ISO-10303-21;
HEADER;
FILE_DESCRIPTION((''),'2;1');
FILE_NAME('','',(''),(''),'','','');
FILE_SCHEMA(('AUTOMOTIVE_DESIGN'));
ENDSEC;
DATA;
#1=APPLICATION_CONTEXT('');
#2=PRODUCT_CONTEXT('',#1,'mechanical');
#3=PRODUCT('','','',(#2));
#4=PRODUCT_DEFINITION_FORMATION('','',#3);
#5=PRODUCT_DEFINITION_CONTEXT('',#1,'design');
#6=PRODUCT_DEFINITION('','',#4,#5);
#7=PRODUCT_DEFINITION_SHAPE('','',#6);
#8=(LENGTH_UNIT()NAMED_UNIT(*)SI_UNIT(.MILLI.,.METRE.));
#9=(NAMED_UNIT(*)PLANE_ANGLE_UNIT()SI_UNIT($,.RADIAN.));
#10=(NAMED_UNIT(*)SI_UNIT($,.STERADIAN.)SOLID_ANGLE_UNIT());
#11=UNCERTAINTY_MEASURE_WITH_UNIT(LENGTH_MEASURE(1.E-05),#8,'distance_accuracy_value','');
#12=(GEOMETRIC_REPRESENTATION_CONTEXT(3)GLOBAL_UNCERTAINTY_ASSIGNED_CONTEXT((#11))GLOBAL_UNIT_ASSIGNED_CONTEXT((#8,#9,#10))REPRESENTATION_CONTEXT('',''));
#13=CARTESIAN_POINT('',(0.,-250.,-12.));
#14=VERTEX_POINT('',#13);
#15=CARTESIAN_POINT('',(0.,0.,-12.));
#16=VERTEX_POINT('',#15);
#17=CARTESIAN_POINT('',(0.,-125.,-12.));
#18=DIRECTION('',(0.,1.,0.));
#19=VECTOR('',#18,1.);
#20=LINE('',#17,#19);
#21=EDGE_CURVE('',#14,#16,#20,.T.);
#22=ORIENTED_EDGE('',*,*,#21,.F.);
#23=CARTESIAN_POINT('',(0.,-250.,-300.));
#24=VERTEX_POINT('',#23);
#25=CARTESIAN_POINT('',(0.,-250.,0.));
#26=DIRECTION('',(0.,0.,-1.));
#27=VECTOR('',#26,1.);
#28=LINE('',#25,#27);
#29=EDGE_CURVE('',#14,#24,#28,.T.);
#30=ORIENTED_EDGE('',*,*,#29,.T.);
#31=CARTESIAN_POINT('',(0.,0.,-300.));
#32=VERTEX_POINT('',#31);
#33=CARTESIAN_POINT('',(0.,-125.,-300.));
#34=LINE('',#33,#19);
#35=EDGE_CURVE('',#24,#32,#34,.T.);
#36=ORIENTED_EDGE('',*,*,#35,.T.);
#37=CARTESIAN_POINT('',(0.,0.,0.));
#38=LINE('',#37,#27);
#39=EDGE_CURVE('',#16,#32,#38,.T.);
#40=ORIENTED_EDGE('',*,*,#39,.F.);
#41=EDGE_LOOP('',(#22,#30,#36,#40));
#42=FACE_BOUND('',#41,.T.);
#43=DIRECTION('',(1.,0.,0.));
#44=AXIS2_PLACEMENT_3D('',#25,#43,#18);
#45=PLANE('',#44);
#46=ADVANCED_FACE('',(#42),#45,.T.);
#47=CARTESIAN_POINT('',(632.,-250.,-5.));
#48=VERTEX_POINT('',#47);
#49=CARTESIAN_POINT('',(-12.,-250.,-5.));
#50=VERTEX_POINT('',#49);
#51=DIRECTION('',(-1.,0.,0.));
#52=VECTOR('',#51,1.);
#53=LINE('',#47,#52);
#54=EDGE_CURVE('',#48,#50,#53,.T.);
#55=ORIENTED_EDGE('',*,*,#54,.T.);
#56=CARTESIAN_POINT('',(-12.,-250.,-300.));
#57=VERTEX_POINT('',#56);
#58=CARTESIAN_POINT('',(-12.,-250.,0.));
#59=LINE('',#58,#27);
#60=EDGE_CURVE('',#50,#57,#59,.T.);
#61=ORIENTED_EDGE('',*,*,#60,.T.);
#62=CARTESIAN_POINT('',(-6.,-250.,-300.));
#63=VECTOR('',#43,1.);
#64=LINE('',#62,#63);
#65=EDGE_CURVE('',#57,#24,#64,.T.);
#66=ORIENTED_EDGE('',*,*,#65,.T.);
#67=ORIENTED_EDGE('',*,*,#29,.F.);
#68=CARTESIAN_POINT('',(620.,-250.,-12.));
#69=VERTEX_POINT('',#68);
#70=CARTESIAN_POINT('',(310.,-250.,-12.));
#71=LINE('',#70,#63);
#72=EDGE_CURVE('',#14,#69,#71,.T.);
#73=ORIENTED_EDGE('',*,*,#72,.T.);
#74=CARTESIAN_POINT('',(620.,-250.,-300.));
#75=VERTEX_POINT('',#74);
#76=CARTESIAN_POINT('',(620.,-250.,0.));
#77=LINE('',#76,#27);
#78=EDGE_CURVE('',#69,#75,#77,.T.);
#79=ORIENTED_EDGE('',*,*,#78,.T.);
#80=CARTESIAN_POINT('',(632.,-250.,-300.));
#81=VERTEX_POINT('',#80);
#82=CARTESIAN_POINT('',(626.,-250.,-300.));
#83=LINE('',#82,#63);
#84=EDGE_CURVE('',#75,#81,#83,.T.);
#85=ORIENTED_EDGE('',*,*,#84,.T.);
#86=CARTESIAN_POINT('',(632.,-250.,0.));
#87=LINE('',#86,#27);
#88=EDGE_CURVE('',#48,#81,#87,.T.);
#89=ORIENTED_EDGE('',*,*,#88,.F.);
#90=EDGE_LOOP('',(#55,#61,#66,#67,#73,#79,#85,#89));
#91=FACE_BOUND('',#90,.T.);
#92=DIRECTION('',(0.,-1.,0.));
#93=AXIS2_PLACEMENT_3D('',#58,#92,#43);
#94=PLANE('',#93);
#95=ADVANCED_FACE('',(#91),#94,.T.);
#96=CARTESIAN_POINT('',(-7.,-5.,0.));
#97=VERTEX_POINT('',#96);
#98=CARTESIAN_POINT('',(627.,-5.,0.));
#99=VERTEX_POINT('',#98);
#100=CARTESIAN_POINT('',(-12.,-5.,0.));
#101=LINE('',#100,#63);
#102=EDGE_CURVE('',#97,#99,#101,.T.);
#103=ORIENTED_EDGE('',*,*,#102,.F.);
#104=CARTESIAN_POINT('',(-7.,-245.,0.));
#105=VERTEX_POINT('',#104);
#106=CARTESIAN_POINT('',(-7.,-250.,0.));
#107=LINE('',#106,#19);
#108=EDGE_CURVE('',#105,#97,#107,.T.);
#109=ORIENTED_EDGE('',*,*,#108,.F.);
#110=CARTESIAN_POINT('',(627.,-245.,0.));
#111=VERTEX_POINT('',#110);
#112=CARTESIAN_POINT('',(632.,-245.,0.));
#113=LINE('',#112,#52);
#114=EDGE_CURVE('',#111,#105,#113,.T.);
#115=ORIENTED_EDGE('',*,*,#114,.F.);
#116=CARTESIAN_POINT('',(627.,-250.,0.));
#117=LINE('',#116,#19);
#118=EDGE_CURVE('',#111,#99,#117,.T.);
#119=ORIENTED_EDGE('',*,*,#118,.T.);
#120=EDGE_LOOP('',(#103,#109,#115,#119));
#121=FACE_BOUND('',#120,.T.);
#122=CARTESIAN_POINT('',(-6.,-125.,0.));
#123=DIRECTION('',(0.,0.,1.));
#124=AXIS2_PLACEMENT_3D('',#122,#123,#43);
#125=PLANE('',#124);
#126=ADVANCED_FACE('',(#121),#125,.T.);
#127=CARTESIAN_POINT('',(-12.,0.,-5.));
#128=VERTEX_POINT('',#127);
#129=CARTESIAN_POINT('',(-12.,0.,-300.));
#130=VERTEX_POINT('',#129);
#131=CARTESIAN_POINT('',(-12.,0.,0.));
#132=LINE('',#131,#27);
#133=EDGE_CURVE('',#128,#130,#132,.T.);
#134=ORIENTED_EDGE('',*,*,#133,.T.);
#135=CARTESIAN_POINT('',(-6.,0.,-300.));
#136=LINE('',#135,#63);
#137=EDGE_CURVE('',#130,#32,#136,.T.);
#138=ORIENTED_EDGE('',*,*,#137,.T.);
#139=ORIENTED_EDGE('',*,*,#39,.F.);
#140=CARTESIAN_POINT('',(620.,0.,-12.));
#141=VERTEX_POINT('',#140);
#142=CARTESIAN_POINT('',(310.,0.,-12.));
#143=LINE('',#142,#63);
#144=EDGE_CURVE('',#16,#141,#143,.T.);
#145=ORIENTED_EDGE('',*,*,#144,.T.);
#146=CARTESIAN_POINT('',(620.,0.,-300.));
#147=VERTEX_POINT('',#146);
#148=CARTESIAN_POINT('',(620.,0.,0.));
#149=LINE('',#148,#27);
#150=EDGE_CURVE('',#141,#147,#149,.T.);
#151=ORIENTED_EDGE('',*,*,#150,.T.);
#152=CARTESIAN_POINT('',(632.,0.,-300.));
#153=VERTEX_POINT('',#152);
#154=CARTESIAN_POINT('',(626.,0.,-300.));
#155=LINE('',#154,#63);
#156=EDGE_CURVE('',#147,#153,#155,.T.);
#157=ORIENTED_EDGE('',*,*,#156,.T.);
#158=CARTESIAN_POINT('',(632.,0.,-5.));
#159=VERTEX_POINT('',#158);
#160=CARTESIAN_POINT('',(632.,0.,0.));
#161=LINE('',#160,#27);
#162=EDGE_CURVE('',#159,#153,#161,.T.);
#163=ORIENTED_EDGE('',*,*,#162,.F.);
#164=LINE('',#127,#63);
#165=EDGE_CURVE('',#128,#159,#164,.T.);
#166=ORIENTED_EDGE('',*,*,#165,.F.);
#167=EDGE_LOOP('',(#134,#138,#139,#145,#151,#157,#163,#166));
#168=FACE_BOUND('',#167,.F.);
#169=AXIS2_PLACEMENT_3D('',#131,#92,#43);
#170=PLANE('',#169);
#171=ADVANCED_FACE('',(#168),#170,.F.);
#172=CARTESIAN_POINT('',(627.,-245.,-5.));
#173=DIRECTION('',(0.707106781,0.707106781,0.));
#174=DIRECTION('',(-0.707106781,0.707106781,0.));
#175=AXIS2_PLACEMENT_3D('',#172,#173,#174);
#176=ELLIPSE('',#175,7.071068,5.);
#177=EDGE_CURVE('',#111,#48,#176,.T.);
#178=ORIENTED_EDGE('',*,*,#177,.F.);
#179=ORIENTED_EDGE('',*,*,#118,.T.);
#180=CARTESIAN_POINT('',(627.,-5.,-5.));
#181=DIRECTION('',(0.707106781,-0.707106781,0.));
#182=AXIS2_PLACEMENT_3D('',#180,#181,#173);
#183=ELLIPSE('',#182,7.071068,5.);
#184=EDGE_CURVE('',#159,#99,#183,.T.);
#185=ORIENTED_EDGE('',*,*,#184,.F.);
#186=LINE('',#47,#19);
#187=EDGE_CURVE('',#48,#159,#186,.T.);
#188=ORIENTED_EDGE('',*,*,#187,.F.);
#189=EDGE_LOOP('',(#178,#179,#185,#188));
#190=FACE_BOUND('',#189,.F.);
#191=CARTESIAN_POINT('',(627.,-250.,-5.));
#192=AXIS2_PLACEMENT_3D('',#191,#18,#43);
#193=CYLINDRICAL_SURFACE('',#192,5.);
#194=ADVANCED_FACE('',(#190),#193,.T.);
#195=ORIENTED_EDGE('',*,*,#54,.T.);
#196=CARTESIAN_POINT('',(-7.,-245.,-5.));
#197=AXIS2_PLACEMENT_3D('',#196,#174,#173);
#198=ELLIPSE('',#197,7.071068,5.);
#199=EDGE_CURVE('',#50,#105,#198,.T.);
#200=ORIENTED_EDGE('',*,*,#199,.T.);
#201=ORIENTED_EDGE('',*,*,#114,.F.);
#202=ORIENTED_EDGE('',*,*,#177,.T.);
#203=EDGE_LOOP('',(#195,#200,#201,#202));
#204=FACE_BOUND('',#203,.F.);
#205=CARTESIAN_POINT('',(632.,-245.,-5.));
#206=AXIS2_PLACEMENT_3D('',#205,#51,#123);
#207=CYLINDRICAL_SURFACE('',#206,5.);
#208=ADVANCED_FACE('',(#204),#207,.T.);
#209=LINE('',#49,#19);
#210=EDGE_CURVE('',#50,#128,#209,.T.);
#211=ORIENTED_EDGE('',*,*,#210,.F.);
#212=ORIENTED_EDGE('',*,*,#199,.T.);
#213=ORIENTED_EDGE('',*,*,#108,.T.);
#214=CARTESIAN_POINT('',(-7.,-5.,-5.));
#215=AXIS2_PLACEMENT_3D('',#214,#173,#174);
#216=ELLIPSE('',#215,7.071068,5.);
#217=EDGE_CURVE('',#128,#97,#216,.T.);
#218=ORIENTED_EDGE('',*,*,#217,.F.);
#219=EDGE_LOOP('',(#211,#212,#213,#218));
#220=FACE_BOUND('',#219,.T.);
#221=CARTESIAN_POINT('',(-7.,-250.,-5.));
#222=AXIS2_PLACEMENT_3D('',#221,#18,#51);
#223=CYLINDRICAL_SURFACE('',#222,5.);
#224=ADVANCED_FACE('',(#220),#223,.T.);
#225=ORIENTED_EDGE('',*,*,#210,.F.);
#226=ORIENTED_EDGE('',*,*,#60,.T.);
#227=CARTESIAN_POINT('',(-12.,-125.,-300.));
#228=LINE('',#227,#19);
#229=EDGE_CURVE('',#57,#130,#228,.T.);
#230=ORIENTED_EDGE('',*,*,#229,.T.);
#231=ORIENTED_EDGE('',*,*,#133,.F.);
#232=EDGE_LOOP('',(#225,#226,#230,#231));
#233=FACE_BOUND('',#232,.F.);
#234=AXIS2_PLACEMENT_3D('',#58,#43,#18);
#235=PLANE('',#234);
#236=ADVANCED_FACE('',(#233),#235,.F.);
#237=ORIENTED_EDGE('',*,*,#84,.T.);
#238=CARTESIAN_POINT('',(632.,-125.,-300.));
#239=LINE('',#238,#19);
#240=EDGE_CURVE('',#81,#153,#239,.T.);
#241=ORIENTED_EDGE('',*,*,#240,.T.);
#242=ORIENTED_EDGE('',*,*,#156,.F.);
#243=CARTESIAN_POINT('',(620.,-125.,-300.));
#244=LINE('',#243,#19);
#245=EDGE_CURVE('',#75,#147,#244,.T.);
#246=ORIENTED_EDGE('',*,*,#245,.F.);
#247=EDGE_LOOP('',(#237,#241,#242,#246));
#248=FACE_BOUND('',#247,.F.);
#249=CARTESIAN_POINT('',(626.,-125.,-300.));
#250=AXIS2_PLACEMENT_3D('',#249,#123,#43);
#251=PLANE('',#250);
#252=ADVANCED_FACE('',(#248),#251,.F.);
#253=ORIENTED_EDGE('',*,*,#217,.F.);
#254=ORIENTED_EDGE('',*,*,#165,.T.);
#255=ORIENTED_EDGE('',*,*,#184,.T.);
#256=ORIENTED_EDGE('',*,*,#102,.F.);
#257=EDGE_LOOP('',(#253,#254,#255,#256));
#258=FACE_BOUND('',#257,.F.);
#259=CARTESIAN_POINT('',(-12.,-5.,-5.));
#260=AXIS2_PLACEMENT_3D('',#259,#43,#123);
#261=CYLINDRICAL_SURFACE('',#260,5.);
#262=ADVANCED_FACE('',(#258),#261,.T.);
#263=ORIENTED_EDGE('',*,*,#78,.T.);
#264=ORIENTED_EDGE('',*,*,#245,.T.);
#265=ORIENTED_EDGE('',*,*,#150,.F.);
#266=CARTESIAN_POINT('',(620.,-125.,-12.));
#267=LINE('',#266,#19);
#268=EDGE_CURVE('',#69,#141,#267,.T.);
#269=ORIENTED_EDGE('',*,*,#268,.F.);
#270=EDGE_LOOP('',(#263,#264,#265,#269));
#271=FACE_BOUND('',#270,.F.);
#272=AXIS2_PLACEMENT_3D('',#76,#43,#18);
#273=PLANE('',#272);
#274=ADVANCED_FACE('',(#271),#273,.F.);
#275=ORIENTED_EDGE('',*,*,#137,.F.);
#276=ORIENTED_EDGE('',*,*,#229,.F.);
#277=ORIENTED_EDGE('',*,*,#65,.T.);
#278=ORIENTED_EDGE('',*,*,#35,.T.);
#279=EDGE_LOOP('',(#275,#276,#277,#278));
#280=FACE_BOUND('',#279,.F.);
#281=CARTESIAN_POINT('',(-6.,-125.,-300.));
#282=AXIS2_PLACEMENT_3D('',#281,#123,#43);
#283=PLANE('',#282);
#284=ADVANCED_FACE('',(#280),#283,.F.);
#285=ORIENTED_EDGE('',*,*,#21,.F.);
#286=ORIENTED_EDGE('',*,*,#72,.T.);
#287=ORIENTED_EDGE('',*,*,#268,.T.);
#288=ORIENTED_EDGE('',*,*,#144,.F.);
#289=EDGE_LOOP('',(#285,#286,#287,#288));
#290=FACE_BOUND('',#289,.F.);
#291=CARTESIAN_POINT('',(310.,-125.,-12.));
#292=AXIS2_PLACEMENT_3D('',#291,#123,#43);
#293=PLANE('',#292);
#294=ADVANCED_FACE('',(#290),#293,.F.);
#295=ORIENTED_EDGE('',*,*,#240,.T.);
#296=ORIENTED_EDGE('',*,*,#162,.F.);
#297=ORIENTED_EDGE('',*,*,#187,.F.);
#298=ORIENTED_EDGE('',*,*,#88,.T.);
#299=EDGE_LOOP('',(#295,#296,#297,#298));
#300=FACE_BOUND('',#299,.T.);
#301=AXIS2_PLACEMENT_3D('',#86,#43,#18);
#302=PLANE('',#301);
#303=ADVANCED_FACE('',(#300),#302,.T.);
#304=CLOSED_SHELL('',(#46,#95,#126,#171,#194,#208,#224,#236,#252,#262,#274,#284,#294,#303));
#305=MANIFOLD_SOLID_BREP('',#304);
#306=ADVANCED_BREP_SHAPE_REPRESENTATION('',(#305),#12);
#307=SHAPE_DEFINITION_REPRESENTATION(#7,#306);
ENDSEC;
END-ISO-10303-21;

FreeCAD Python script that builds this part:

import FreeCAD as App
import Part
import Sketcher


def edges_at(feature, points):
    """Names of the edges that pass closest to the given points."""
    edges = feature.Shape.Edges
    near = lambda p: min(range(len(edges)), key=lambda i: edges[i].distToShape(Part.Vertex(*p))[0])
    return sorted({f"Edge{near(p) + 1}" for p in points})

doc = App.newDocument("Part")
params = doc.addObject("Spreadsheet::Sheet", "Params")
for row, (alias, value) in enumerate([
    ("sketch1_width", "620 mm"),
    ("sketch1_height", "250 mm"),
    ("pad1_length", "12 mm"),
    ("sketch2_width", "12 mm"),
    ("sketch2_height", "250 mm"),
    ("pad2_length", "300 mm"),
    ("fillet_radius", "5 mm"),
], start=1):
    params.set(f"A{row}", alias)
    params.set(f"B{row}", "=" + value)
    params.setAlias(f"B{row}", alias)

body = doc.addObject("PartDesign::Body", "Body")

# Sketch on XY plane
sketch1 = body.newObject("Sketcher::SketchObject", "Sketch")
sketch1.AttachmentSupport = (doc.getObject("XY_Plane"), [""])
sketch1.MapMode = "FlatFace"
sketch1.addGeometry(Part.LineSegment(App.Vector(0, 0, 0), App.Vector(0, -250, 0)), False)
sketch1.addGeometry(Part.LineSegment(App.Vector(0, -250, 0), App.Vector(620, -250, 0)), False)
sketch1.addGeometry(Part.LineSegment(App.Vector(620, -250, 0), App.Vector(620, 0, 0)), False)
sketch1.addGeometry(Part.LineSegment(App.Vector(620, 0, 0), App.Vector(0, 0, 0)), False)
sketch1.addConstraint(Sketcher.Constraint("Coincident", 0, 2, 1, 1))
sketch1.addConstraint(Sketcher.Constraint("Coincident", 1, 2, 2, 1))
sketch1.addConstraint(Sketcher.Constraint("Coincident", 2, 2, 3, 1))
sketch1.addConstraint(Sketcher.Constraint("Coincident", 3, 2, 0, 1))
sketch1.addConstraint(Sketcher.Constraint("Vertical", 0))
sketch1.addConstraint(Sketcher.Constraint("Horizontal", 1))
sketch1.addConstraint(Sketcher.Constraint("Vertical", 2))
sketch1.addConstraint(Sketcher.Constraint("Horizontal", 3))
sketch1.addConstraint(Sketcher.Constraint("Coincident", 3, 2, -1, 1))
sketch1.addConstraint(Sketcher.Constraint("DistanceX", 1, 1, 1, 2, 620.0))
sketch1.addConstraint(Sketcher.Constraint("DistanceY", 0, 2, 0, 1, 250.0))
sketch1.setExpression("Constraints[9]", "Params.sketch1_width")
sketch1.setExpression("Constraints[10]", "Params.sketch1_height")
pad1 = body.newObject("PartDesign::Pad", "Pad")
pad1.Profile = sketch1
pad1.setExpression("Length", "Params.pad1_length")
pad1.Reversed = True

# Sketch on XY plane
sketch2 = body.newObject("Sketcher::SketchObject", "Sketch001")
sketch2.AttachmentSupport = (doc.getObject("XY_Plane"), [""])
sketch2.MapMode = "FlatFace"
sketch2.addGeometry(Part.LineSegment(App.Vector(-12, 0, 0), App.Vector(-12, -250, 0)), False)
sketch2.addGeometry(Part.LineSegment(App.Vector(-12, -250, 0), App.Vector(0, -250, 0)), False)
sketch2.addGeometry(Part.LineSegment(App.Vector(0, -250, 0), App.Vector(0, 0, 0)), False)
sketch2.addGeometry(Part.LineSegment(App.Vector(0, 0, 0), App.Vector(-12, 0, 0)), False)
sketch2.addGeometry(Part.LineSegment(App.Vector(620, 0, 0), App.Vector(620, -250, 0)), False)
sketch2.addGeometry(Part.LineSegment(App.Vector(620, -250, 0), App.Vector(632, -250, 0)), False)
sketch2.addGeometry(Part.LineSegment(App.Vector(632, -250, 0), App.Vector(632, 0, 0)), False)
sketch2.addGeometry(Part.LineSegment(App.Vector(632, 0, 0), App.Vector(620, 0, 0)), False)
sketch2.addConstraint(Sketcher.Constraint("Coincident", 0, 2, 1, 1))
sketch2.addConstraint(Sketcher.Constraint("Coincident", 1, 2, 2, 1))
sketch2.addConstraint(Sketcher.Constraint("Coincident", 2, 2, 3, 1))
sketch2.addConstraint(Sketcher.Constraint("Coincident", 3, 2, 0, 1))
sketch2.addConstraint(Sketcher.Constraint("Coincident", 4, 2, 5, 1))
sketch2.addConstraint(Sketcher.Constraint("Coincident", 5, 2, 6, 1))
sketch2.addConstraint(Sketcher.Constraint("Coincident", 6, 2, 7, 1))
sketch2.addConstraint(Sketcher.Constraint("Coincident", 7, 2, 4, 1))
sketch2.addConstraint(Sketcher.Constraint("Vertical", 0))
sketch2.addConstraint(Sketcher.Constraint("Horizontal", 1))
sketch2.addConstraint(Sketcher.Constraint("Vertical", 2))
sketch2.addConstraint(Sketcher.Constraint("Horizontal", 3))
sketch2.addConstraint(Sketcher.Constraint("Vertical", 4))
sketch2.addConstraint(Sketcher.Constraint("Horizontal", 5))
sketch2.addConstraint(Sketcher.Constraint("Vertical", 6))
sketch2.addConstraint(Sketcher.Constraint("Horizontal", 7))
sketch2.addConstraint(Sketcher.Constraint("Coincident", 2, 2, -1, 1))
sketch2.addConstraint(Sketcher.Constraint("PointOnObject", 6, 2, -1))
sketch2.addConstraint(Sketcher.Constraint("Horizontal", 1, 2, 4, 2))
sketch2.addConstraint(Sketcher.Constraint("Equal", 3, 5))
sketch2.addConstraint(Sketcher.Constraint("DistanceX", 1, 1, 1, 2, 12.0))
sketch2.addConstraint(Sketcher.Constraint("DistanceY", 0, 2, 0, 1, 250.0))
sketch2.addConstraint(Sketcher.Constraint("DistanceX", -1, 1, 4, 2, 620.0))
sketch2.setExpression("Constraints[20]", "Params.sketch2_width")
sketch2.setExpression("Constraints[21]", "Params.sketch2_height")
pad2 = body.newObject("PartDesign::Pad", "Pad001")
pad2.Profile = sketch2
pad2.setExpression("Length", "Params.pad2_length")
pad2.Reversed = True
doc.recompute()

fillet = body.newObject("PartDesign::Fillet", "Fillet")
fillet.Base = (pad2, edges_at(pad2, [
    (-12, -125, 0),
    (310, -250, 0),
    (632, -125, 0),
    (310, 0, 0),
]))
fillet.setExpression("Radius", "Params.fillet_radius")

doc.recompute()
